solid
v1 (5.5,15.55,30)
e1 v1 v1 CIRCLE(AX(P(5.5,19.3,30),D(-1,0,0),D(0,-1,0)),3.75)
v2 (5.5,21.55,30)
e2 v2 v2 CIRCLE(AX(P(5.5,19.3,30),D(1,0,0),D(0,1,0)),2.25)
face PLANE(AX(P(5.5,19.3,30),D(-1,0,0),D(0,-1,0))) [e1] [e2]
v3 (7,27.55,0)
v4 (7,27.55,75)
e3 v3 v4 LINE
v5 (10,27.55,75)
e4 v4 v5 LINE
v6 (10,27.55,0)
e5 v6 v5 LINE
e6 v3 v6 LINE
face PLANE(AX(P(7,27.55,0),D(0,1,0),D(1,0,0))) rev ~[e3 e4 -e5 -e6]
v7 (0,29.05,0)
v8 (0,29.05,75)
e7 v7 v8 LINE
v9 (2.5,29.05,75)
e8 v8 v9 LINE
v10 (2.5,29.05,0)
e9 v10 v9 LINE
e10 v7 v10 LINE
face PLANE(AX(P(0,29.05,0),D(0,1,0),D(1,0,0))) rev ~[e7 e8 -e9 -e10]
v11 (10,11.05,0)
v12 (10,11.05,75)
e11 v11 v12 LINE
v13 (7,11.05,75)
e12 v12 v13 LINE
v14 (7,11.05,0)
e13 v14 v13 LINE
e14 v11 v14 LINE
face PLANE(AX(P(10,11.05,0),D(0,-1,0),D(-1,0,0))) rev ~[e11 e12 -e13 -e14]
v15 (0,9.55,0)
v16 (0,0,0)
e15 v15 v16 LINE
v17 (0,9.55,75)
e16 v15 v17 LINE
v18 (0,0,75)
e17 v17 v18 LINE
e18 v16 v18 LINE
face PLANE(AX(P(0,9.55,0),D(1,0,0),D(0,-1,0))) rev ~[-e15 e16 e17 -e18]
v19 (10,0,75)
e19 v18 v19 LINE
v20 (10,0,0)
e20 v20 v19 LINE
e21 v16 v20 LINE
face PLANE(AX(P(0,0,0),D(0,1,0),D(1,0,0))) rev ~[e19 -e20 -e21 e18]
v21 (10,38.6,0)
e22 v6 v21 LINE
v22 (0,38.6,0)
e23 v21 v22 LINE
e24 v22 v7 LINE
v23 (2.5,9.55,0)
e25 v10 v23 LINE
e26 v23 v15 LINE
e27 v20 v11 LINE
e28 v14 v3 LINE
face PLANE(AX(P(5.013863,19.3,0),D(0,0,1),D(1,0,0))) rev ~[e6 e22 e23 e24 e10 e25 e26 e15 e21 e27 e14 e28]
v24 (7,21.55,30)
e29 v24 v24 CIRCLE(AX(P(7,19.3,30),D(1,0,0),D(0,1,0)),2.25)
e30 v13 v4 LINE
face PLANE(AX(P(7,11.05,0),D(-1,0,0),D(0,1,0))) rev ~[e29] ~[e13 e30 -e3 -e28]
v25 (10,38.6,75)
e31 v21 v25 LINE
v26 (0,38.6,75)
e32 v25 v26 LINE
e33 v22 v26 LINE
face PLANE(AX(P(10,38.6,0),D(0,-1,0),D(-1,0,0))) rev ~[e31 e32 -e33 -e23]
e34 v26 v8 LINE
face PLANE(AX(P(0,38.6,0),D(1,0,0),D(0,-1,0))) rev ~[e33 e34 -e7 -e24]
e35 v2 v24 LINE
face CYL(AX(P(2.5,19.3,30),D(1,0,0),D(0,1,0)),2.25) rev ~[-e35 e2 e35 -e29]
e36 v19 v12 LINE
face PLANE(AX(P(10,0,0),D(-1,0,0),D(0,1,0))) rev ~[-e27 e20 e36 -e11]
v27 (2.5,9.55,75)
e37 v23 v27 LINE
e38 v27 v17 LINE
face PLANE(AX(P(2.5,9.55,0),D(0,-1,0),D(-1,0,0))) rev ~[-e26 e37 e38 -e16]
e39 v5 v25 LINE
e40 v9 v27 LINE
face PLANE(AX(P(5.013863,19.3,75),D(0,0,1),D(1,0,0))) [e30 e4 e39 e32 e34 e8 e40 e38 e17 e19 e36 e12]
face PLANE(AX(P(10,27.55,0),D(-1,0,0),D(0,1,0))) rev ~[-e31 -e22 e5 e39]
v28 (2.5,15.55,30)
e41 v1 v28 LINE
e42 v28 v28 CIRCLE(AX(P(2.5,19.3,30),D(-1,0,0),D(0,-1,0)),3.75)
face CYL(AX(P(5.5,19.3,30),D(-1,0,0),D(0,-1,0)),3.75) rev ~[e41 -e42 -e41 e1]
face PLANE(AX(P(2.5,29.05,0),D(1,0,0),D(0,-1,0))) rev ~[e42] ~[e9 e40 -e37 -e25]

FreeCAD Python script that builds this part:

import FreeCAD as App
import Part
import Sketcher

V = App.Vector


def add_polygon(sketch, points):
    """Adds a closed chain of lines whose ends are joined by coincident constraints."""
    first, n = sketch.GeometryCount, len(points)
    for a, b in zip(points, points[1:] + points[:1]):
        sketch.addGeometry(Part.LineSegment(App.Vector(*a, 0), App.Vector(*b, 0)), False)
    for i in range(n):
        sketch.addConstraint(Sketcher.Constraint("Coincident", first + i, 2, first + (i + 1) % n, 1))

doc = App.newDocument("Part")
params = doc.addObject("Spreadsheet::Sheet", "Params")
for row, (alias, value) in enumerate([
    ("sketch1_width", "10 mm"),
    ("sketch1_width2", "3 mm"),
    ("sketch1_width3", "2.5 mm"),
    ("sketch1_height", "16.5 mm"),
    ("sketch1_height2", "19.5 mm"),
    ("pad1_length", "75 mm"),
    ("sketch2_diameter", "4.5 mm"),
    ("hole_diameter", "4.5 mm"),
    ("hole_cbore_diameter", "7.5 mm"),
    ("hole_cbore_depth", "3 mm"),
], start=1):
    params.set(f"A{row}", alias)
    params.set(f"B{row}", "=" + value)
    params.setAlias(f"B{row}", alias)

body = doc.addObject("PartDesign::Body", "Body")

# Sketch on XY plane
sketch1 = body.newObject("Sketcher::SketchObject", "Sketch")
sketch1.AttachmentSupport = (doc.getObject("XY_Plane"), [""])
sketch1.MapMode = "FlatFace"
add_polygon(sketch1, [(0, 9.6), (0, 0), (10, 0), (10, 11.1), (7, 11.1), (7, 27.6), (10, 27.6), (10, 38.6), (0, 38.6), (0, 29.1), (2.5, 29.1), (2.5, 9.6)])  # lines 0-11
sketch1.addConstraint(Sketcher.Constraint("Vertical", 0))
sketch1.addConstraint(Sketcher.Constraint("Horizontal", 1))
sketch1.addConstraint(Sketcher.Constraint("Vertical", 2))
sketch1.addConstraint(Sketcher.Constraint("Horizontal", 3))
sketch1.addConstraint(Sketcher.Constraint("Vertical", 4))
sketch1.addConstraint(Sketcher.Constraint("Horizontal", 5))
sketch1.addConstraint(Sketcher.Constraint("Vertical", 6))
sketch1.addConstraint(Sketcher.Constraint("Horizontal", 7))
sketch1.addConstraint(Sketcher.Constraint("Vertical", 8))
sketch1.addConstraint(Sketcher.Constraint("Horizontal", 9))
sketch1.addConstraint(Sketcher.Constraint("Vertical", 10))
sketch1.addConstraint(Sketcher.Constraint("Horizontal", 11))
sketch1.addConstraint(Sketcher.Constraint("Coincident", 0, 2, -1, 1))
sketch1.addConstraint(Sketcher.Constraint("PointOnObject", 7, 2, -2))
sketch1.addConstraint(Sketcher.Constraint("Vertical", 2, 2, 5, 2))
sketch1.addConstraint(Sketcher.Constraint("Equal", 2, 6))
sketch1.addConstraint(Sketcher.Constraint("Equal", 0, 8))
sketch1.addConstraint(Sketcher.Constraint("DistanceX", 1, 1, 1, 2, 10.0))
sketch1.addConstraint(Sketcher.Constraint("DistanceX", 3, 2, 3, 1, 3.0))
sketch1.addConstraint(Sketcher.Constraint("DistanceX", 9, 1, 9, 2, 2.5))
sketch1.addConstraint(Sketcher.Constraint("DistanceY", 4, 1, 4, 2, 16.5))
sketch1.addConstraint(Sketcher.Constraint("DistanceY", 10, 2, 10, 1, 19.5))
sketch1.addConstraint(Sketcher.Constraint("DistanceY", 0, 2, 0, 1, 9.55))
sketch1.setExpression("Constraints[29]", "Params.sketch1_width")
sketch1.setExpression("Constraints[30]", "Params.sketch1_width2")
sketch1.setExpression("Constraints[31]", "Params.sketch1_width3")
sketch1.setExpression("Constraints[32]", "Params.sketch1_height")
sketch1.setExpression("Constraints[33]", "Params.sketch1_height2")
pad1 = body.newObject("PartDesign::Pad", "Pad")
pad1.Profile = sketch1
pad1.setExpression("Length", "Params.pad1_length")

# Sketch on YZ plane
sketch2 = body.newObject("Sketcher::SketchObject", "Sketch001")
sketch2.AttachmentSupport = (doc.getObject("YZ_Plane"), [""])
sketch2.MapMode = "FlatFace"
sketch2.AttachmentOffset = App.Placement(V(0, 0, 2.5), App.Rotation())
sketch2.addGeometry(Part.Circle(V(19.3, 30, 0), V(0, 0, 1), 2.2), False)
sketch2.addConstraint(Sketcher.Constraint("Diameter", 0, 4.5))
sketch2.addConstraint(Sketcher.Constraint("DistanceY", -1, 1, 0, 3, 30.0))
sketch2.addConstraint(Sketcher.Constraint("DistanceX", -1, 1, 0, 3, 19.3))
sketch2.setExpression("Constraints[0]", "Params.sketch2_diameter")
doc.recompute()
hole = body.newObject("PartDesign::Hole", "Hole")
hole.Profile = sketch2
hole.ThreadType = "None"
hole.setExpression("Diameter", "Params.hole_diameter")
hole.DepthType = "ThroughAll"
hole.HoleCutType = "Counterbore"
hole.setExpression("HoleCutDiameter", "Params.hole_cbore_diameter")
hole.setExpression("HoleCutDepth", "Params.hole_cbore_depth")
hole.Reversed = True

doc.recompute()
